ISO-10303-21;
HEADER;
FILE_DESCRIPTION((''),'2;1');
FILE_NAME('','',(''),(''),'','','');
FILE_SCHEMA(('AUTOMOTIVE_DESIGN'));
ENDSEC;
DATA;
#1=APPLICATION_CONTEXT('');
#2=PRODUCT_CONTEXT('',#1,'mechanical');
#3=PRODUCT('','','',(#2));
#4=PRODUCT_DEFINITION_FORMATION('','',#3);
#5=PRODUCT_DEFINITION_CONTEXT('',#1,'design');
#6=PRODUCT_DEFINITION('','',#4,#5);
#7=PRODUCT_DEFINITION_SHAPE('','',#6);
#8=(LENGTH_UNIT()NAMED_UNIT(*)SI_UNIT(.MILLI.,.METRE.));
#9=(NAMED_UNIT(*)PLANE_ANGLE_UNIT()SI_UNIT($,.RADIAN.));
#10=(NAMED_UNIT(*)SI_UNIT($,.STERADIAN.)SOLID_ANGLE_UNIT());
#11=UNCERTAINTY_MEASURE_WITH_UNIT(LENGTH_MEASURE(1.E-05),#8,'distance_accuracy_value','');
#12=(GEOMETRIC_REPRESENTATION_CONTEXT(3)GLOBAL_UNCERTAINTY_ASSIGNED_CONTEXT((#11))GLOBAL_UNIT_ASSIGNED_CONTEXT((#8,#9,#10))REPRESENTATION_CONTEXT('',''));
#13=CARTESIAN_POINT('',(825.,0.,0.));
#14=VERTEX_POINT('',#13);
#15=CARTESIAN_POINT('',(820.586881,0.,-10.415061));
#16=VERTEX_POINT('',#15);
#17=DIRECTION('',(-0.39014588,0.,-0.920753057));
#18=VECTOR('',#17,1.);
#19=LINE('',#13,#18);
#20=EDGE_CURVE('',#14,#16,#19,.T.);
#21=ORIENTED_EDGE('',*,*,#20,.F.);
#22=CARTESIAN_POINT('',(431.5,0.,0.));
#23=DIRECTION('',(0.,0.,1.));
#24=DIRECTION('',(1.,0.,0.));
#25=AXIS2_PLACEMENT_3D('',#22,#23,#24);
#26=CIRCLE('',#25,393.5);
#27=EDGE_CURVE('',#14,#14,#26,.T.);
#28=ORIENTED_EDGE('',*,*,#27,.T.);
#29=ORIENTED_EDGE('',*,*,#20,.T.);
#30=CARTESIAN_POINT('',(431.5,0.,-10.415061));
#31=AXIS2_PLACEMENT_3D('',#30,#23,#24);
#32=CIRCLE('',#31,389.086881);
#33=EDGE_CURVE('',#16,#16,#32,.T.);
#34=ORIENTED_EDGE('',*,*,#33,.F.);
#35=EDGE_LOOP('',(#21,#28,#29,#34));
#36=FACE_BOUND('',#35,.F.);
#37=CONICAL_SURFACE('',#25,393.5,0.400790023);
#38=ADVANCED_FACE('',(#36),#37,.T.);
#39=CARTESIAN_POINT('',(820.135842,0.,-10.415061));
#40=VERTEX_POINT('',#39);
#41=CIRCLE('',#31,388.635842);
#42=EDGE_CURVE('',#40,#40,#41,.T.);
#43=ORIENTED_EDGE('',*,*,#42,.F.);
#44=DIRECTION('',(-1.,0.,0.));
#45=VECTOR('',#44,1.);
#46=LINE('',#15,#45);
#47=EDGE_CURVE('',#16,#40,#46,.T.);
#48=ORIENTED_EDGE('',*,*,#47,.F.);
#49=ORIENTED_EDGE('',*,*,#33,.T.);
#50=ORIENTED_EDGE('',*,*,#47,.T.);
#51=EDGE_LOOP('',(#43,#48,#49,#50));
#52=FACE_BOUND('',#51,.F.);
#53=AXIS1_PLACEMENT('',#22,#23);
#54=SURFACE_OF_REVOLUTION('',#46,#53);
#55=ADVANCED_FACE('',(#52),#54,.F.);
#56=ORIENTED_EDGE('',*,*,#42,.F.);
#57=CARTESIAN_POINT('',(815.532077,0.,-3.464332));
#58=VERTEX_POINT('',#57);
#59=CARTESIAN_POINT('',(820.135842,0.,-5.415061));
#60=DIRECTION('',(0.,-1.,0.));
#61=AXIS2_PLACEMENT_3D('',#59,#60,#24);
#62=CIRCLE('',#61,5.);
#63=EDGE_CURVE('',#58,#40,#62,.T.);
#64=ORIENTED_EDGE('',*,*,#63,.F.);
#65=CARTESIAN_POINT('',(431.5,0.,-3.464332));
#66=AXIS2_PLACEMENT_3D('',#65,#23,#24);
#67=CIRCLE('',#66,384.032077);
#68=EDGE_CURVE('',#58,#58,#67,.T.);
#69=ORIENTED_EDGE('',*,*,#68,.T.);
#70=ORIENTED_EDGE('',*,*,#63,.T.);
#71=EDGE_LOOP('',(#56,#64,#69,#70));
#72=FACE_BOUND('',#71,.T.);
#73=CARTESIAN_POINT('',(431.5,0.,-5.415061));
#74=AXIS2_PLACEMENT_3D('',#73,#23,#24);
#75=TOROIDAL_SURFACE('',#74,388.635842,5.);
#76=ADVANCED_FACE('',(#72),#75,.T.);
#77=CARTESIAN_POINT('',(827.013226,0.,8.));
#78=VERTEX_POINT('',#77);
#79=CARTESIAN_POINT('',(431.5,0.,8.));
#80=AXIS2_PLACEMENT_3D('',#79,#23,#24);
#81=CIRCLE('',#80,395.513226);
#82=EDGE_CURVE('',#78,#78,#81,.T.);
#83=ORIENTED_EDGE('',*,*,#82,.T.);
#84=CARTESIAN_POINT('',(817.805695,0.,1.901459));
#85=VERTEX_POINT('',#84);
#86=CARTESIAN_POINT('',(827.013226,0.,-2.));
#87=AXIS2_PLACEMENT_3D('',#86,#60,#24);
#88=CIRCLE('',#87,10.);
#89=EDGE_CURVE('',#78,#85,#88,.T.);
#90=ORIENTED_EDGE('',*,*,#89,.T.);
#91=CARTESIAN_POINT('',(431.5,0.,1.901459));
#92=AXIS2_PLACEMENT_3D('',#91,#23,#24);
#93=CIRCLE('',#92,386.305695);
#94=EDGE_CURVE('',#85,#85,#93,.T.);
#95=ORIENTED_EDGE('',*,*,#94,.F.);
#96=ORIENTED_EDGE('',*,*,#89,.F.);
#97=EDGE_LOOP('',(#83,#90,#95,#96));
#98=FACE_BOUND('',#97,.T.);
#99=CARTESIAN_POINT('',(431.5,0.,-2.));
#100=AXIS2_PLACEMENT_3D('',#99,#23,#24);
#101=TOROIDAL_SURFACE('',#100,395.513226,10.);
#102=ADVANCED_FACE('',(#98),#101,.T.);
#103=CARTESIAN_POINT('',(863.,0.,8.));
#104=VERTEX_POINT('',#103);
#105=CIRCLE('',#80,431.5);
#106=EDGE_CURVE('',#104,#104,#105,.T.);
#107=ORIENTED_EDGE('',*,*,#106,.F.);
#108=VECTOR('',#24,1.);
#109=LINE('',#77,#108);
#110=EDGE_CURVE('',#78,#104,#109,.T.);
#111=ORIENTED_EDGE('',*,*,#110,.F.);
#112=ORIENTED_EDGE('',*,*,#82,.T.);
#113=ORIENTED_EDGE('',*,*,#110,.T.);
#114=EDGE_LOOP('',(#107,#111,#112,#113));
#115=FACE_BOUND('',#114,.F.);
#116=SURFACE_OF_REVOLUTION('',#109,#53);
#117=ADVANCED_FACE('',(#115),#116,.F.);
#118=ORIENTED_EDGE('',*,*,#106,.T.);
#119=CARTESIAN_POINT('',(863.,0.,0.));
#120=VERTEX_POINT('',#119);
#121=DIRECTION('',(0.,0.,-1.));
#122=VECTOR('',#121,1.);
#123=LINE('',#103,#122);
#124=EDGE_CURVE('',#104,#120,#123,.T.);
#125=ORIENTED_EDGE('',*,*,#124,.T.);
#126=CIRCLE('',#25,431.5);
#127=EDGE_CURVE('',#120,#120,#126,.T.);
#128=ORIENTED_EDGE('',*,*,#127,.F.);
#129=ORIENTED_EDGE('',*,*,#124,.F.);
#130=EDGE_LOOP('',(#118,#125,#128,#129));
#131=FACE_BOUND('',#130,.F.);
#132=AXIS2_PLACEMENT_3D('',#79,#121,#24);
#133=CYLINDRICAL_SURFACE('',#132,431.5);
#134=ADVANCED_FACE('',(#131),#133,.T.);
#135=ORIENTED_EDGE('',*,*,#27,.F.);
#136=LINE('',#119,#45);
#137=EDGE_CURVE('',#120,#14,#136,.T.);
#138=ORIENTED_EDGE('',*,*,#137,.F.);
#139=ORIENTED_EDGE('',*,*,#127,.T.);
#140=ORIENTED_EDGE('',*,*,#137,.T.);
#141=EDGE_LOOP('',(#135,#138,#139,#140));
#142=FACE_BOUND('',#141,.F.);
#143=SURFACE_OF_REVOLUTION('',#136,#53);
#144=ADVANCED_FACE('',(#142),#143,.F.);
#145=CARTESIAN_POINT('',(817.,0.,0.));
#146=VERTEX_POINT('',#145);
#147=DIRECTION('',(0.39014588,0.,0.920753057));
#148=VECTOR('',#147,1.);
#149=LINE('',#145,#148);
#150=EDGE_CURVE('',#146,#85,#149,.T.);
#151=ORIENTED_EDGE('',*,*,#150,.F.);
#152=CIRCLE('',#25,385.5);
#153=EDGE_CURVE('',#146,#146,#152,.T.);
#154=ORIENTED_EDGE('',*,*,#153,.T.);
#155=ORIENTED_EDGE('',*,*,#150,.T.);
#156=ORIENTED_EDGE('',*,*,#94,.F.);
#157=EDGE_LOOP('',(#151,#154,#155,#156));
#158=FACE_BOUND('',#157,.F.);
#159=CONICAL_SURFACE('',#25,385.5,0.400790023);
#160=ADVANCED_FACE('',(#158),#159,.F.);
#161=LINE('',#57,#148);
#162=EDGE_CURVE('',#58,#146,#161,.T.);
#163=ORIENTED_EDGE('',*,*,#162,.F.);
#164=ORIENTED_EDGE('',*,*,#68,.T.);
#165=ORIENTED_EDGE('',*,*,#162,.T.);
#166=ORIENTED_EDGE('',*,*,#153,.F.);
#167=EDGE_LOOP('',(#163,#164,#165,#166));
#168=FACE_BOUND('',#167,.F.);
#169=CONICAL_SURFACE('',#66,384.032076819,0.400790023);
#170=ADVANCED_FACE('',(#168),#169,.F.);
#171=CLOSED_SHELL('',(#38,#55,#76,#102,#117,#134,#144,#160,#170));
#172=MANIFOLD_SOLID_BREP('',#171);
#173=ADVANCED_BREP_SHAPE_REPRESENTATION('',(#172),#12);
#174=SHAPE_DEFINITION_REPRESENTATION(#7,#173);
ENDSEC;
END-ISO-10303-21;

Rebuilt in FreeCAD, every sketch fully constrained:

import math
import FreeCAD as App
import Part
import Sketcher
from FreeCAD import Vector
Q = App.Units.Quantity

doc = App.newDocument("Part")
body = doc.addObject("PartDesign::Body", "Body")

sketch1 = body.newObject("Sketcher::SketchObject", "Sketch")
sketch1.AttachmentSupport = (doc.getObject("XZ_Plane"), [""])
sketch1.MapMode = "FlatFace"
sketch1.addGeometry([
    Part.LineSegment(Vector(0, 8, 0), Vector(0, 0, 0)),
    Part.LineSegment(Vector(0, 0, 0), Vector(38, 0, 0)),
    Part.LineSegment(Vector(38, 0, 0), Vector(42.41, -10.42, 0)),
    Part.LineSegment(Vector(42.41, -10.42, 0), Vector(42.86, -10.42, 0)),
    Part.ArcOfCircle(Part.Circle(Vector(42.86, -5.42, 0), Vector(0, 0, 1), 5), math.radians(-90), math.radians(23)),
    Part.LineSegment(Vector(47.47, -3.46, 0), Vector(46, 0, 0)),
    Part.LineSegment(Vector(46, 0, 0), Vector(45.19, 1.9, 0)),
    Part.ArcOfCircle(Part.Circle(Vector(35.99, -2, 0), Vector(0, 0, 1), 10), math.radians(23), math.radians(90)),
    Part.LineSegment(Vector(35.99, 8, 0), Vector(0, 8, 0)),
], False)
sketch1.addConstraint([
    Sketcher.Constraint("Coincident", 0, 2, 1, 1),
    Sketcher.Constraint("Coincident", 1, 2, 2, 1),
    Sketcher.Constraint("Coincident", 2, 2, 3, 1),
    Sketcher.Constraint("Tangent", 3, 2, 4, 1),
    Sketcher.Constraint("Tangent", 4, 2, 5, 1),
    Sketcher.Constraint("Coincident", 5, 2, 6, 1),
    Sketcher.Constraint("Tangent", 6, 2, 7, 1),
    Sketcher.Constraint("Tangent", 7, 2, 8, 1),
    Sketcher.Constraint("Coincident", 8, 2, 0, 1),
    Sketcher.Constraint("Vertical", 0),
    Sketcher.Constraint("Horizontal", 1),
    Sketcher.Constraint("Horizontal", 3),
    Sketcher.Constraint("Horizontal", 8),
    Sketcher.Constraint("Coincident", 0, 2, -1, 1),
    Sketcher.Constraint("PointOnObject", 5, 2, -1),
    Sketcher.Constraint("Parallel", 2, 5),
    Sketcher.Constraint("Parallel", 5, 6),
    Sketcher.Constraint("Radius", 4, Q("5 mm")),
    Sketcher.Constraint("Radius", 7, Q("10 mm")),
    Sketcher.Constraint("DistanceX", 1, 1, 1, 2, Q("38 mm")),
    Sketcher.Constraint("DistanceY", 0, 2, 0, 1, Q("8 mm")),
    Sketcher.Constraint("DistanceX", -1, 1, 5, 2, Q("46 mm")),
    Sketcher.Constraint("Distance", 5, Q("3.762498 mm")),
    Sketcher.Constraint("DistanceX", 3, 1, 3, 2, Q("0.451038 mm")),
])

sketch2 = body.newObject("Sketcher::SketchObject", "Sketch001")
sketch2.AttachmentSupport = (doc.getObject("XY_Plane"), [""])
sketch2.MapMode = "FlatFace"
sketch2.addGeometry(Part.Circle(Vector(432, 0, 0), Vector(0, 0, 1), 412), False)
sketch2.addConstraint([
    Sketcher.Constraint("PointOnObject", 0, 3, -1),
    Sketcher.Constraint("Diameter", 0, Q("825 mm")),
    Sketcher.Constraint("DistanceX", -1, 1, 0, 3, Q("431.5 mm")),
])
doc.recompute()

additivepipe = body.newObject("PartDesign::AdditivePipe", "AdditivePipe")
additivepipe.Profile = sketch1
additivepipe.Spine = (sketch2, ["Edge1"])

doc.recompute()
